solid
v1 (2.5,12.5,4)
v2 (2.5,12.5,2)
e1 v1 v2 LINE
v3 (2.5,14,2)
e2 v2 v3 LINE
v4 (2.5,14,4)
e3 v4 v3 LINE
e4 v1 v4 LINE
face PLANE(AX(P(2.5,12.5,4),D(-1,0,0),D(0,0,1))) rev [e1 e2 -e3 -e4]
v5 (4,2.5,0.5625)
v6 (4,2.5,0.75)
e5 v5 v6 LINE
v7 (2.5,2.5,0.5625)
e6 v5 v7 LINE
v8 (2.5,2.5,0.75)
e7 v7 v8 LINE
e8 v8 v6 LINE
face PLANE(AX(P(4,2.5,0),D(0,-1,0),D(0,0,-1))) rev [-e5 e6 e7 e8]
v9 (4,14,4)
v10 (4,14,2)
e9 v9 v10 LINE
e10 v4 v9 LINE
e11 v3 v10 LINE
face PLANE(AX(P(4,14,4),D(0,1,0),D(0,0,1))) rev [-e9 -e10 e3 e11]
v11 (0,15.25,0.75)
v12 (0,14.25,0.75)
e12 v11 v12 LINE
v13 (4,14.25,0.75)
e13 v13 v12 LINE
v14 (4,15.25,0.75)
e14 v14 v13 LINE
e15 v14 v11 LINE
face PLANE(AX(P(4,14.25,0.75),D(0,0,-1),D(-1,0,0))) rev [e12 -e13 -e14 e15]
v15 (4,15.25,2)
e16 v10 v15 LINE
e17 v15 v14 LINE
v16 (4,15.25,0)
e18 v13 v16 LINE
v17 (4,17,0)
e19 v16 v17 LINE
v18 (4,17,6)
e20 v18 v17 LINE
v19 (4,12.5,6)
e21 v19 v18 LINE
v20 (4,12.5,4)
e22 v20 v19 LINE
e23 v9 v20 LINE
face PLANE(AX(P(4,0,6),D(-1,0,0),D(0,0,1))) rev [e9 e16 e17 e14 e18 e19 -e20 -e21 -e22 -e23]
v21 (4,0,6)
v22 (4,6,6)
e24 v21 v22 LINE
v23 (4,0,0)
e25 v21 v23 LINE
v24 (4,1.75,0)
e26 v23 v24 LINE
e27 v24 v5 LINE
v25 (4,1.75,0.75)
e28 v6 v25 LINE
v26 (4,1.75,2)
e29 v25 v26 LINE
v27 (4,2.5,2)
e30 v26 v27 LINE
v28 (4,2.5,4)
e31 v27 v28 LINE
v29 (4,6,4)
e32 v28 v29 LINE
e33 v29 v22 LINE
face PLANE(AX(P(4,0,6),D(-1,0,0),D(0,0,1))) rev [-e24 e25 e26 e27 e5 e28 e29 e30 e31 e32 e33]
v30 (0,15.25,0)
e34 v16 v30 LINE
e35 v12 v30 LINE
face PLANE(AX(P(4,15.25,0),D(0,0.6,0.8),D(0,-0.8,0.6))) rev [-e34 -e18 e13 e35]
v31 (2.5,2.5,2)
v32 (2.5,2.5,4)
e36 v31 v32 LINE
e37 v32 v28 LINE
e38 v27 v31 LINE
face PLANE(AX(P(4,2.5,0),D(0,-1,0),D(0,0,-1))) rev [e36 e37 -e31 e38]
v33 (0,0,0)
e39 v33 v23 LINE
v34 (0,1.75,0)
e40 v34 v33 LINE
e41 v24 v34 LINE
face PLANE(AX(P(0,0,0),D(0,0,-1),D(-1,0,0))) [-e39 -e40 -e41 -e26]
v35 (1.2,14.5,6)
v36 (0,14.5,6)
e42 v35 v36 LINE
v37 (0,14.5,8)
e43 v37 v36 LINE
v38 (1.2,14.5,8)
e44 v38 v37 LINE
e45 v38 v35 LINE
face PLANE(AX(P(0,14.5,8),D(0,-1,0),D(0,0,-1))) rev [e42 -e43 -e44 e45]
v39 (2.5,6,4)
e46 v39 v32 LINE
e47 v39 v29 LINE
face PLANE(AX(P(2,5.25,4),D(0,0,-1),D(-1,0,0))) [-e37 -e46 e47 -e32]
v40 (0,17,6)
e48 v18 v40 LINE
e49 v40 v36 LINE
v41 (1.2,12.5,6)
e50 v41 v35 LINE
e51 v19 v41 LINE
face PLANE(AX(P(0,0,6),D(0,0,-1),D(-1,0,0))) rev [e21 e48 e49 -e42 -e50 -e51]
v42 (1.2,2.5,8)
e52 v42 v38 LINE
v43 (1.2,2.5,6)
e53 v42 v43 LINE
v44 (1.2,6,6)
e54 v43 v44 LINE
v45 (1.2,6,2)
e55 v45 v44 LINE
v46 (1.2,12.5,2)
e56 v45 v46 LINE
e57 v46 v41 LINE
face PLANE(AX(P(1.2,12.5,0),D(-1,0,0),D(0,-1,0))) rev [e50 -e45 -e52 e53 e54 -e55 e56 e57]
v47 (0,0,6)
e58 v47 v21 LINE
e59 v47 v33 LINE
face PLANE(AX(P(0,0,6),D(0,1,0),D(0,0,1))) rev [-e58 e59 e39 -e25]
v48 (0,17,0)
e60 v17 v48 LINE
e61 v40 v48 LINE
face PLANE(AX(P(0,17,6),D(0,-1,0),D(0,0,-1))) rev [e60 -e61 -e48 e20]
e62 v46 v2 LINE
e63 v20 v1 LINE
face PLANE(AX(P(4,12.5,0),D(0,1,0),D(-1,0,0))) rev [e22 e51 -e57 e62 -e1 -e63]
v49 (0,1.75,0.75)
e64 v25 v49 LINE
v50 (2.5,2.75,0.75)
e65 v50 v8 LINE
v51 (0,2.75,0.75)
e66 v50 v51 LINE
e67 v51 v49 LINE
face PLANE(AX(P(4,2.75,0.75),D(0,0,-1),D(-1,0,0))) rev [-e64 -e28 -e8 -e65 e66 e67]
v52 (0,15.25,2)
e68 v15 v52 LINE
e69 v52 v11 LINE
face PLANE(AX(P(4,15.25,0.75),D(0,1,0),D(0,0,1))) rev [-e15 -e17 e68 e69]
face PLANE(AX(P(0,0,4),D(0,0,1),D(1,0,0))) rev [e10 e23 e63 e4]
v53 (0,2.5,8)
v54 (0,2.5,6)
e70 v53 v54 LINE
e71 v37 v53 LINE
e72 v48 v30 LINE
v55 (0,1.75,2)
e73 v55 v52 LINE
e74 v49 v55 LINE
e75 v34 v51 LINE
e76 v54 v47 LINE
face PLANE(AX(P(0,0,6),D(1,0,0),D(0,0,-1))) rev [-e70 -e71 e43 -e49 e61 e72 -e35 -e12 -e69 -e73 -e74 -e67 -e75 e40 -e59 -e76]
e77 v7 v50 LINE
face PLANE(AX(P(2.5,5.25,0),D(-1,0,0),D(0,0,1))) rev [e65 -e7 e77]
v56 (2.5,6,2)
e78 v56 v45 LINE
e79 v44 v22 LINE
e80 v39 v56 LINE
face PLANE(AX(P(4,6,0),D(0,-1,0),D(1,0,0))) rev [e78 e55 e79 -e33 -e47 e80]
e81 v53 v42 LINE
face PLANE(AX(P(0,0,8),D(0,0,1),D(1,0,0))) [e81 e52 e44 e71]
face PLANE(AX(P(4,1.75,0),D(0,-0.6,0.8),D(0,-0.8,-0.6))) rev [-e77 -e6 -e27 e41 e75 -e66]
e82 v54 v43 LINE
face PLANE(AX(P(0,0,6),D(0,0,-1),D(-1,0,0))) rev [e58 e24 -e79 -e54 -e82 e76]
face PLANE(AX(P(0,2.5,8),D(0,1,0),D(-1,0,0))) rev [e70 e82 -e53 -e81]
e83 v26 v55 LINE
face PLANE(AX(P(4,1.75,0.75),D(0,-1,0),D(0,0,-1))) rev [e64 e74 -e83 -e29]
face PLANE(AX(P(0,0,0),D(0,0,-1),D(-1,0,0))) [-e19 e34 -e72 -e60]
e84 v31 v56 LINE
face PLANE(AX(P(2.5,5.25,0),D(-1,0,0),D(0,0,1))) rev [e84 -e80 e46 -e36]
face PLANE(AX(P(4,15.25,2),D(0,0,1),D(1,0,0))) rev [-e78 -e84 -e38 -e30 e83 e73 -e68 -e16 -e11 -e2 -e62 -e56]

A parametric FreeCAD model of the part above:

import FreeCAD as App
import Part
import Sketcher
from FreeCAD import Vector


def add_polygon(sketch, points):
    """Adds a closed chain of lines whose ends are joined by coincident constraints."""
    first, n = sketch.GeometryCount, len(points)
    for a, b in zip(points, points[1:] + points[:1]):
        sketch.addGeometry(Part.LineSegment(App.Vector(*a, 0), App.Vector(*b, 0)), False)
    for i in range(n):
        sketch.addConstraint(Sketcher.Constraint("Coincident", first + i, 2, first + (i + 1) % n, 1))

doc = App.newDocument("Part")
body = doc.addObject("PartDesign::Body", "Body")

sketch1 = body.newObject("Sketcher::SketchObject", "Sketch")
sketch1.AttachmentSupport = (doc.getObject("XY_Plane"), [""])
sketch1.MapMode = "FlatFace"
add_polygon(sketch1, [(0, 17), (0, 0), (4, 0), (4, 17)])
sketch1.addConstraint([
    Sketcher.Constraint("Vertical", 0),
    Sketcher.Constraint("Horizontal", 1),
    Sketcher.Constraint("Vertical", 2),
    Sketcher.Constraint("Horizontal", 3),
    Sketcher.Constraint("Coincident", 0, 2, -1, 1),
    Sketcher.Constraint("DistanceX", 1, 1, 1, 2, 4.0),
    Sketcher.Constraint("DistanceY", 0, 2, 0, 1, 17.0),
])
pad1 = body.newObject("PartDesign::Pad", "Pad")
pad1.Profile = sketch1
pad1.Length = 6

sketch2 = body.newObject("Sketcher::SketchObject", "Sketch001")
sketch2.AttachmentSupport = (doc.getObject("XY_Plane"), [""])
sketch2.MapMode = "FlatFace"
sketch2.AttachmentOffset = App.Placement(Vector(0, 0, 6), App.Rotation())
add_polygon(sketch2, [(1.2, 12.5), (1.2, 6), (4, 6), (4, 12.5)])
add_polygon(sketch2, [(2.5, 5.2), (2.5, 2.5), (4, 2.5), (4, 5.2)])
sketch2.addConstraint([
    Sketcher.Constraint("Vertical", 0),
    Sketcher.Constraint("Horizontal", 1),
    Sketcher.Constraint("Vertical", 2),
    Sketcher.Constraint("Horizontal", 3),
    Sketcher.Constraint("Vertical", 4),
    Sketcher.Constraint("Horizontal", 5),
    Sketcher.Constraint("Vertical", 6),
    Sketcher.Constraint("Horizontal", 7),
    Sketcher.Constraint("Vertical", 2, 2, 5, 2),
    Sketcher.Constraint("DistanceX", 1, 1, 1, 2, 2.8),
    Sketcher.Constraint("DistanceX", 5, 1, 5, 2, 1.5),
    Sketcher.Constraint("DistanceY", 0, 2, 0, 1, 6.5),
    Sketcher.Constraint("DistanceY", -1, 1, 0, 2, 6.0),
    Sketcher.Constraint("DistanceX", -1, 1, 1, 2, 4.0),
    Sketcher.Constraint("DistanceY", 4, 2, 3, 2, 10.0),
    Sketcher.Constraint("DistanceY", 4, 2, 4, 1, 2.75),
])
pocket1 = body.newObject("PartDesign::Pocket", "Pocket")
pocket1.Profile = sketch2
pocket1.Type = "ThroughAll"

sketch3 = body.newObject("Sketcher::SketchObject", "Sketch002")
sketch3.AttachmentSupport = (doc.getObject("YZ_Plane"), [""])
sketch3.MapMode = "FlatFace"
add_polygon(sketch3, [(14.2, 0.8), (15.2, 0), (1.8, 0), (2.8, 0.8), (1.8, 0.8), (1.8, 2), (15.2, 2), (15.2, 0.8)])
sketch3.addConstraint([
    Sketcher.Constraint("Horizontal", 1),
    Sketcher.Constraint("Horizontal", 3),
    Sketcher.Constraint("Vertical", 4),
    Sketcher.Constraint("Horizontal", 5),
    Sketcher.Constraint("Vertical", 6),
    Sketcher.Constraint("Horizontal", 7),
    Sketcher.Constraint("PointOnObject", 0, 2, -1),
    Sketcher.Constraint("Horizontal", 3, 2, 6, 2),
    Sketcher.Constraint("Vertical", 1, 2, 3, 2),
    Sketcher.Constraint("Vertical", 0, 2, 5, 2),
    Sketcher.Constraint("Equal", 3, 7),
    Sketcher.Constraint("DistanceX", 3, 2, 3, 1, 1.0),
    Sketcher.Constraint("DistanceX", 1, 2, 1, 1, 13.5),
    Sketcher.Constraint("DistanceY", -1, 1, 4, 2, 2.0),
    Sketcher.Constraint("DistanceY", 4, 1, 4, 2, 1.25),
    Sketcher.Constraint("DistanceX", -1, 1, 0, 2, 15.25),
])
pocket2 = body.newObject("PartDesign::Pocket", "Pocket001")
pocket2.Profile = sketch3
pocket2.Type = "ThroughAll"
pocket2.Reversed = True

sketch4 = body.newObject("Sketcher::SketchObject", "Sketch003")
sketch4.AttachmentSupport = (doc.getObject("YZ_Plane"), [""])
sketch4.MapMode = "FlatFace"
sketch4.AttachmentOffset = App.Placement(Vector(0, 0, 4), App.Rotation())
add_polygon(sketch4, [(5.2, 6), (2.5, 6), (2.5, 4), (5.2, 4)])
sketch4.addConstraint([
    Sketcher.Constraint("Horizontal", 0),
    Sketcher.Constraint("Vertical", 1),
    Sketcher.Constraint("Horizontal", 2),
    Sketcher.Constraint("Vertical", 3),
    Sketcher.Constraint("DistanceY", 1, 2, 1, 1, 2.0),
    Sketcher.Constraint("DistanceY", -1, 1, 0, 2, 6.0),
    Sketcher.Constraint("DistanceX", 0, 2, 0, 1, 2.75),
    Sketcher.Constraint("DistanceX", -1, 1, 0, 2, 2.5),
])
pad2 = body.newObject("PartDesign::Pad", "Pad001")
pad2.Profile = sketch4
pad2.Length = 2
pad2.Reversed = True

sketch5 = body.newObject("Sketcher::SketchObject", "Sketch004")
sketch5.AttachmentSupport = (doc.getObject("XY_Plane"), [""])
sketch5.MapMode = "FlatFace"
sketch5.AttachmentOffset = App.Placement(Vector(0, 0, 6), App.Rotation())
add_polygon(sketch5, [(0, 14.5), (0, 2.5), (1.2, 2.5), (1.2, 14.5)])
sketch5.addConstraint([
    Sketcher.Constraint("Vertical", 0),
    Sketcher.Constraint("Horizontal", 1),
    Sketcher.Constraint("Vertical", 2),
    Sketcher.Constraint("Horizontal", 3),
    Sketcher.Constraint("PointOnObject", 0, 2, -2),
    Sketcher.Constraint("DistanceY", 0, 2, 0, 1, 12.0),
    Sketcher.Constraint("DistanceX", 1, 1, 1, 2, 1.2),
    Sketcher.Constraint("DistanceY", -1, 1, 0, 2, 2.5),
])
pad3 = body.newObject("PartDesign::Pad", "Pad002")
pad3.Profile = sketch5
pad3.Length = 2

sketch6 = body.newObject("Sketcher::SketchObject", "Sketch005")
sketch6.AttachmentSupport = (doc.getObject("XY_Plane"), [""])
sketch6.MapMode = "FlatFace"
sketch6.AttachmentOffset = App.Placement(Vector(0, 0, 2), App.Rotation())
add_polygon(sketch6, [(4, 14), (4, 12.5), (2.5, 12.5), (2.5, 14)])
add_polygon(sketch6, [(4, 6), (4, 5.2), (2.5, 5.2), (2.5, 6)])
sketch6.addConstraint([
    Sketcher.Constraint("Vertical", 0),
    Sketcher.Constraint("Horizontal", 1),
    Sketcher.Constraint("Vertical", 2),
    Sketcher.Constraint("Horizontal", 3),
    Sketcher.Constraint("Vertical", 4),
    Sketcher.Constraint("Horizontal", 5),
    Sketcher.Constraint("Vertical", 6),
    Sketcher.Constraint("Horizontal", 7),
    Sketcher.Constraint("Vertical", 3, 2, 4, 2),
    Sketcher.Constraint("Vertical", 2, 2, 5, 2),
    Sketcher.Constraint("Equal", 7, 0),
    Sketcher.Constraint("DistanceX", 1, 2, 1, 1, 1.5),
    Sketcher.Constraint("DistanceX", -1, 1, 0, 2, 4.0),
    Sketcher.Constraint("DistanceY", -1, 1, 2, 2, 14.0),
    Sketcher.Constraint("DistanceY", -1, 1, 6, 2, 6.0),
    Sketcher.Constraint("DistanceY", 4, 2, 4, 1, 0.75),
])
pocket3 = body.newObject("PartDesign::Pocket", "Pocket002")
pocket3.Profile = sketch6
pocket3.Length = 2
pocket3.Reversed = True

doc.recompute()
